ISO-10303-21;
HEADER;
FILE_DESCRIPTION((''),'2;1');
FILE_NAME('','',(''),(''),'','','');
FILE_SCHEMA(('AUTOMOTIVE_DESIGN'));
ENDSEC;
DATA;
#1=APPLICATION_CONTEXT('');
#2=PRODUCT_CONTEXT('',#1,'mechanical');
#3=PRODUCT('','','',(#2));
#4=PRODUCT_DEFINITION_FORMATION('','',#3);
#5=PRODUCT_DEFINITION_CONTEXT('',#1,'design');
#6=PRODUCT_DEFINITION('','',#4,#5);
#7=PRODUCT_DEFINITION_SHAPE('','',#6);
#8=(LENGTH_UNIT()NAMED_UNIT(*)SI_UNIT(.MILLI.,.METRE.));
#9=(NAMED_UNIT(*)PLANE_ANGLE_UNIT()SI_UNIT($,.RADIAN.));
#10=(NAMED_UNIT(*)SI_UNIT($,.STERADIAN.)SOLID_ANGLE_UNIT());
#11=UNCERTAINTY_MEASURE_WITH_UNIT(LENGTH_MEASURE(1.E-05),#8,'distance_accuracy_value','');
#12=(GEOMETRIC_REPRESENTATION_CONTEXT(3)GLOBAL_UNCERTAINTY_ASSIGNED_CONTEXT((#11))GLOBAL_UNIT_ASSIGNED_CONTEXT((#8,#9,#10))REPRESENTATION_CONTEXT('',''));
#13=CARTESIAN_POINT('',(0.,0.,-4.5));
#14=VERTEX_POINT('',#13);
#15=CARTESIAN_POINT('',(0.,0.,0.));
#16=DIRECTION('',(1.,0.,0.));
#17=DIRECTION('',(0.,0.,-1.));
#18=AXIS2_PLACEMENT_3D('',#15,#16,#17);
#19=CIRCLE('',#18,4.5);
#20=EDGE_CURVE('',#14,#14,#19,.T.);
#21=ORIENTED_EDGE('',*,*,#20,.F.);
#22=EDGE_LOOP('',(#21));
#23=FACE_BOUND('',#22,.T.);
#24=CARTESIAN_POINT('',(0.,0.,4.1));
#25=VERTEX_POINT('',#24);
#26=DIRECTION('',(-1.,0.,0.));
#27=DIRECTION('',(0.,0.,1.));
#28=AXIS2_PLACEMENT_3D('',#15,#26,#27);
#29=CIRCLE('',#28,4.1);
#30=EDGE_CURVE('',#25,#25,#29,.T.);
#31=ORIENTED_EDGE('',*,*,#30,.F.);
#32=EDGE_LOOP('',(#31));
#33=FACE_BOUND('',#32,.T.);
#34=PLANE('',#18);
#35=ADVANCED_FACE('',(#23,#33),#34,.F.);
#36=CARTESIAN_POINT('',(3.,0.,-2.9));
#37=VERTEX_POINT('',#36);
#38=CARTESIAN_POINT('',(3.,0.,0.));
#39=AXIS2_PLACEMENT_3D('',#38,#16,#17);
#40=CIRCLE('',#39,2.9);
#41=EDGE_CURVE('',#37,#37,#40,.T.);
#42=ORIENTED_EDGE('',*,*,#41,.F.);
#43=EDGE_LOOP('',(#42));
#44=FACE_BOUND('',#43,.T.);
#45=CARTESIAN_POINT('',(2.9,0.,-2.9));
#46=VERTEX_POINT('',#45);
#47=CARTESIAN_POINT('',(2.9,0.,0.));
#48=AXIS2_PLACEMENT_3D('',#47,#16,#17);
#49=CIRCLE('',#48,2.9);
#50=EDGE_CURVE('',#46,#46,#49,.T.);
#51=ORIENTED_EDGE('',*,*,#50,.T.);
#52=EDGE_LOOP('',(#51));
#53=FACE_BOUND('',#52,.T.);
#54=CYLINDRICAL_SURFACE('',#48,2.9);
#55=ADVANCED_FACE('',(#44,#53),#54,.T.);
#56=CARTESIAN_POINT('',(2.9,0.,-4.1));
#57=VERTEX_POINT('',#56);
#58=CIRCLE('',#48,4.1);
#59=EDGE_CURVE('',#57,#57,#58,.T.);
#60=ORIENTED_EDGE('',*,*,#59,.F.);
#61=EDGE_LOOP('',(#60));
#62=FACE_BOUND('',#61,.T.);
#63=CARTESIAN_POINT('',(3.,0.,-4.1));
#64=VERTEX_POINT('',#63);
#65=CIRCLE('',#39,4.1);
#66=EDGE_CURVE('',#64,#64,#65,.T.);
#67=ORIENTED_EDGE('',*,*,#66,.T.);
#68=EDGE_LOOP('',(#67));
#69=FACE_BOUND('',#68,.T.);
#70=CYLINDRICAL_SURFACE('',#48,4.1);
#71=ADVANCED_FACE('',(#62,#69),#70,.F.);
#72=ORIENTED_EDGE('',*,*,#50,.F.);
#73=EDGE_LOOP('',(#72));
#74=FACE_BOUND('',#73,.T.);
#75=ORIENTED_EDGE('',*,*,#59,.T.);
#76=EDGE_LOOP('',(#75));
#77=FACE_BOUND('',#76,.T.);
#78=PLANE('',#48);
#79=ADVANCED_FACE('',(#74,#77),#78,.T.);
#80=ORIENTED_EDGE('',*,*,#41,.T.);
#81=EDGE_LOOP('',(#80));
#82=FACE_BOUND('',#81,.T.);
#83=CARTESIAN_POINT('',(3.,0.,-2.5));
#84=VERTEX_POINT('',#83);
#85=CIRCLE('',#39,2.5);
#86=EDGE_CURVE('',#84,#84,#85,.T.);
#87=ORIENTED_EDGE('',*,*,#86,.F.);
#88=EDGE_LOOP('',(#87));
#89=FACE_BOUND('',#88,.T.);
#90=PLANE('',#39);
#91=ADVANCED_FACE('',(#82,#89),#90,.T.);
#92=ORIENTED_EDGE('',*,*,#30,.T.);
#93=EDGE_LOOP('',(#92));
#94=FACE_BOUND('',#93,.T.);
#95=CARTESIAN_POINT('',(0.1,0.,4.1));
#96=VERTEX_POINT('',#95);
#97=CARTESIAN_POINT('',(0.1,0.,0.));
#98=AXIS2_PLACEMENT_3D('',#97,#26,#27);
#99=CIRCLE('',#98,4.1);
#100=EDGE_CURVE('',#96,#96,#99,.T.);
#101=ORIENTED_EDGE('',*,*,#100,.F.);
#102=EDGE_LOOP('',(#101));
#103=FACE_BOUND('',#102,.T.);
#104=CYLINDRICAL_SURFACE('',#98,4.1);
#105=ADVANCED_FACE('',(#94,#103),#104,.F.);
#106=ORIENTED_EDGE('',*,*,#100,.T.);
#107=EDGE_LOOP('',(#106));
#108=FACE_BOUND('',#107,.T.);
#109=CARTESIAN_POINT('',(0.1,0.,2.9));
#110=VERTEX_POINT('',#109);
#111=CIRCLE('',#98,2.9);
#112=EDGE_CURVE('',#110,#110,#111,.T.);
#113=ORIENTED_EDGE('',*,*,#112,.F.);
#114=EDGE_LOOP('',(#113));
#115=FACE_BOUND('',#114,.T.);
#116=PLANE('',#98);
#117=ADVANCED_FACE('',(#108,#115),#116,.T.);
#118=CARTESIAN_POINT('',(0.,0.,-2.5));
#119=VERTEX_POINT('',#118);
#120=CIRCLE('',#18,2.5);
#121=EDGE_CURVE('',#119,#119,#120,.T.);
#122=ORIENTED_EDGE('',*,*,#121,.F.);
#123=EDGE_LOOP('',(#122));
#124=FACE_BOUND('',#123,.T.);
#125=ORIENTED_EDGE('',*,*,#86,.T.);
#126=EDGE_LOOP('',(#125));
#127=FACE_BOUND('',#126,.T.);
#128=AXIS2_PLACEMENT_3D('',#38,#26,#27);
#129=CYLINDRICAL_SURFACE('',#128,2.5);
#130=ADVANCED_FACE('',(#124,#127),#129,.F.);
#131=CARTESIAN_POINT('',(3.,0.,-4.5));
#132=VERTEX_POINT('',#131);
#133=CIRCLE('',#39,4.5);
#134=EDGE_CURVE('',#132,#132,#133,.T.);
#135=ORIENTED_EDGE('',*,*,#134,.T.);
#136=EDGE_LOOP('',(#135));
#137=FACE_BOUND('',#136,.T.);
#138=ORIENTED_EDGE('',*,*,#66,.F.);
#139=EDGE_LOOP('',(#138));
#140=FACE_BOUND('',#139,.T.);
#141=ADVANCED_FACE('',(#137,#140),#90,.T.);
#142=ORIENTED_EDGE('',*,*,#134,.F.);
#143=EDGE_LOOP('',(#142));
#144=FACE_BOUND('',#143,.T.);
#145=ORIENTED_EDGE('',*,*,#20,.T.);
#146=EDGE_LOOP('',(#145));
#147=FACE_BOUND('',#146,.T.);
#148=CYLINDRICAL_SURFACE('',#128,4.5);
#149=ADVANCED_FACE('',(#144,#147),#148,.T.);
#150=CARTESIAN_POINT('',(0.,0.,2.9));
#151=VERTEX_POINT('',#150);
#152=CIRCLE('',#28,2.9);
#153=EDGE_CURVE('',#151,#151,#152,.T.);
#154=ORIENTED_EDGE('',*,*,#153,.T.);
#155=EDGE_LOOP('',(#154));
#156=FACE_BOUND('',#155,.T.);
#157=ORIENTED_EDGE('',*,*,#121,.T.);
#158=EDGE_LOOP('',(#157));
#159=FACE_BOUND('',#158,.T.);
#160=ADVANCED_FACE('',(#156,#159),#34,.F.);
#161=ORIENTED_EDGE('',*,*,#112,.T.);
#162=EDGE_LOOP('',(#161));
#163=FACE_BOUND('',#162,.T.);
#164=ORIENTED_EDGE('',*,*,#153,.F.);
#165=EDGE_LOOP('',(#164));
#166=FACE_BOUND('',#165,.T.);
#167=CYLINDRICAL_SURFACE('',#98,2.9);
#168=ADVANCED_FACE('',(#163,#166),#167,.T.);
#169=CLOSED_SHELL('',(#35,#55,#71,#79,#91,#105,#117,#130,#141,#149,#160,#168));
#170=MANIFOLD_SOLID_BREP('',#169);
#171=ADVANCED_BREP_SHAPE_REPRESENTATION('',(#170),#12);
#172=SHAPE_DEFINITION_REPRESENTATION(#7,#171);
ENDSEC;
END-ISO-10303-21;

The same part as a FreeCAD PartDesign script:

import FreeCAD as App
import Part
import Sketcher

V = App.Vector
Q = App.Units.Quantity

doc = App.newDocument("Part")
body = doc.addObject("PartDesign::Body", "Body")

# Sketch on YZ plane
sketch1 = body.newObject("Sketcher::SketchObject", "Sketch")
sketch1.AttachmentSupport = (doc.getObject("YZ_Plane"), [""])
sketch1.MapMode = "FlatFace"
sketch1.addGeometry(Part.Circle(V(0, 0, 0), V(0, 0, 1), 4.5), False)
sketch1.addGeometry(Part.Circle(V(0, 0, 0), V(0, 0, 1), 2.5), False)
sketch1.addConstraint(Sketcher.Constraint("Coincident", 0, 3, -1, 1))
sketch1.addConstraint(Sketcher.Constraint("Coincident", 1, 3, -1, 1))
sketch1.addConstraint(Sketcher.Constraint("Diameter", 0, Q("9 mm")))
sketch1.addConstraint(Sketcher.Constraint("Diameter", 1, Q("5 mm")))
pad1 = body.newObject("PartDesign::Pad", "Pad")
pad1.Profile = sketch1
pad1.Length = 3

# Sketch on YZ plane
sketch2 = body.newObject("Sketcher::SketchObject", "Sketch001")
sketch2.AttachmentSupport = (doc.getObject("YZ_Plane"), [""])
sketch2.MapMode = "FlatFace"
sketch2.AttachmentOffset = App.Placement(V(0, 0, 3), App.Rotation())
sketch2.addGeometry(Part.Circle(V(0, 0, 0), V(0, 0, 1), 4.1), False)
sketch2.addGeometry(Part.Circle(V(0, 0, 0), V(0, 0, 1), 2.9), False)
sketch2.addConstraint(Sketcher.Constraint("Coincident", 0, 3, -1, 1))
sketch2.addConstraint(Sketcher.Constraint("Coincident", 1, 3, -1, 1))
sketch2.addConstraint(Sketcher.Constraint("Diameter", 0, Q("8.2 mm")))
sketch2.addConstraint(Sketcher.Constraint("Diameter", 1, Q("5.8 mm")))
pocket1 = body.newObject("PartDesign::Pocket", "Pocket")
pocket1.Profile = sketch2
pocket1.Length = 0.1

# Sketch on YZ plane
sketch3 = body.newObject("Sketcher::SketchObject", "Sketch002")
sketch3.AttachmentSupport = (doc.getObject("YZ_Plane"), [""])
sketch3.MapMode = "FlatFace"
sketch3.AttachmentOffset = App.Placement(V(0, 0, 0.1), App.Rotation())
sketch3.addGeometry(Part.Circle(V(0, 0, 0), V(0, 0, 1), 4.1), False)
sketch3.addGeometry(Part.Circle(V(0, 0, 0), V(0, 0, 1), 2.9), False)
sketch3.addConstraint(Sketcher.Constraint("Coincident", 0, 3, -1, 1))
sketch3.addConstraint(Sketcher.Constraint("Coincident", 1, 3, -1, 1))
sketch3.addConstraint(Sketcher.Constraint("Diameter", 0, Q("8.2 mm")))
sketch3.addConstraint(Sketcher.Constraint("Diameter", 1, Q("5.8 mm")))
pocket2 = body.newObject("PartDesign::Pocket", "Pocket001")
pocket2.Profile = sketch3
pocket2.Length = 0.1

doc.recompute()
